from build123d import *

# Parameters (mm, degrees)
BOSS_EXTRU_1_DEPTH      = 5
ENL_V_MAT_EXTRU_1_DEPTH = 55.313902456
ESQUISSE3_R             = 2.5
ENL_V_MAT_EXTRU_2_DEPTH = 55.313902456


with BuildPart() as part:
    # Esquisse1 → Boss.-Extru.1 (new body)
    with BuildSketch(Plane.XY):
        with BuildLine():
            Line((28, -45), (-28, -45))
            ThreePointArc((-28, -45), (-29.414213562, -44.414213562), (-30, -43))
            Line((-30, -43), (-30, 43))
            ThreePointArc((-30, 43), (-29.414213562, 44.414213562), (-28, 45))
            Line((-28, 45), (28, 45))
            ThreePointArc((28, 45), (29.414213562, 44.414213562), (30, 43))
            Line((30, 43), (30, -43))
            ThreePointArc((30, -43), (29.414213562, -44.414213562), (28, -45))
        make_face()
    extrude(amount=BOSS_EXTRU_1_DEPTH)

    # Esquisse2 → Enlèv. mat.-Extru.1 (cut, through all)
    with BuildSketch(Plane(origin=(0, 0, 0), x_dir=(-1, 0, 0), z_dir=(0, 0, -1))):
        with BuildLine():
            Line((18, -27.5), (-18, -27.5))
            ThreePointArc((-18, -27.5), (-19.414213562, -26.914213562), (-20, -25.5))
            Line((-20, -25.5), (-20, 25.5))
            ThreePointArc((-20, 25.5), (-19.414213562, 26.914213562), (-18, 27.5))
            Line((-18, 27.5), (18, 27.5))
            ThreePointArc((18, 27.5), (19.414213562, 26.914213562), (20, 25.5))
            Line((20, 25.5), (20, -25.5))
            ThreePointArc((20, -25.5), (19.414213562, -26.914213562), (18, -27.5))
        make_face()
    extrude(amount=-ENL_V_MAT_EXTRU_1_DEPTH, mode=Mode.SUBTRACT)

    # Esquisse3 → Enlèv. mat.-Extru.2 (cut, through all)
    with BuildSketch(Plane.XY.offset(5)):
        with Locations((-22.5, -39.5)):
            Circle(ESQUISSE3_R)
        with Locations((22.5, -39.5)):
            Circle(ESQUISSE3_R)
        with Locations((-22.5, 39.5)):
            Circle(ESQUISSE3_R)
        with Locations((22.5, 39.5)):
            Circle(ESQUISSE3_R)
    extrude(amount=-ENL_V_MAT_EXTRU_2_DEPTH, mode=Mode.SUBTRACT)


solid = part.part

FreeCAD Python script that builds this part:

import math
import FreeCAD as App
import Part
import Sketcher
Q = App.Units.Quantity

doc = App.newDocument("Part")
body = doc.addObject("PartDesign::Body", "Body")

# Sketch on XY plane
sketch1 = doc.addObject("Sketcher::SketchObject", "Sketch")
body.addObject(sketch1)
sketch1.AttachmentSupport = (doc.XY_Plane, [""])
sketch1.MapMode = "FlatFace"
sketch1.addGeometry(Part.LineSegment(App.Vector(-28, -45, 0), App.Vector(28, -45, 0)), False)
sketch1.addGeometry(Part.ArcOfCircle(Part.Circle(App.Vector(28, -43, 0), App.Vector(0, 0, 1), 2), math.radians(-90), math.radians(0)), False)
sketch1.addGeometry(Part.LineSegment(App.Vector(30, -43, 0), App.Vector(30, 43, 0)), False)
sketch1.addGeometry(Part.ArcOfCircle(Part.Circle(App.Vector(28, 43, 0), App.Vector(0, 0, 1), 2), math.radians(0), math.radians(90)), False)
sketch1.addGeometry(Part.LineSegment(App.Vector(28, 45, 0), App.Vector(-28, 45, 0)), False)
sketch1.addGeometry(Part.ArcOfCircle(Part.Circle(App.Vector(-28, 43, 0), App.Vector(0, 0, 1), 2), math.radians(90), math.radians(180)), False)
sketch1.addGeometry(Part.LineSegment(App.Vector(-30, 43, 0), App.Vector(-30, -43, 0)), False)
sketch1.addGeometry(Part.ArcOfCircle(Part.Circle(App.Vector(-28, -43, 0), App.Vector(0, 0, 1), 2), math.radians(-180), math.radians(-90)), False)
sketch1.addConstraint(Sketcher.Constraint("Tangent", 0, 2, 1, 1))
sketch1.addConstraint(Sketcher.Constraint("Tangent", 1, 2, 2, 1))
sketch1.addConstraint(Sketcher.Constraint("Tangent", 2, 2, 3, 1))
sketch1.addConstraint(Sketcher.Constraint("Tangent", 3, 2, 4, 1))
sketch1.addConstraint(Sketcher.Constraint("Tangent", 4, 2, 5, 1))
sketch1.addConstraint(Sketcher.Constraint("Tangent", 5, 2, 6, 1))
sketch1.addConstraint(Sketcher.Constraint("Tangent", 6, 2, 7, 1))
sketch1.addConstraint(Sketcher.Constraint("Tangent", 7, 2, 0, 1))
sketch1.addConstraint(Sketcher.Constraint("Horizontal", 0))
sketch1.addConstraint(Sketcher.Constraint("Vertical", 2))
sketch1.addConstraint(Sketcher.Constraint("Horizontal", 4))
sketch1.addConstraint(Sketcher.Constraint("Vertical", 6))
sketch1.addConstraint(Sketcher.Constraint("Equal", 1, 3))
sketch1.addConstraint(Sketcher.Constraint("Equal", 3, 5))
sketch1.addConstraint(Sketcher.Constraint("Equal", 5, 7))
sketch1.addConstraint(Sketcher.Constraint("Symmetric", 1, 3, 5, 3, -1, 1))
sketch1.addConstraint(Sketcher.Constraint("Radius", 1, Q("2 mm")))
sketch1.addConstraint(Sketcher.Constraint("DistanceX", 0, 1, 0, 2, Q("56 mm")))
sketch1.addConstraint(Sketcher.Constraint("DistanceY", 2, 1, 2, 2, Q("86 mm")))
pad1 = doc.addObject("PartDesign::Pad", "Pad")
body.addObject(pad1)
pad1.Profile = sketch1
pad1.Length = 5

# Sketch on XY plane
sketch2 = doc.addObject("Sketcher::SketchObject", "Sketch001")
body.addObject(sketch2)
sketch2.AttachmentSupport = (doc.XY_Plane, [""])
sketch2.MapMode = "FlatFace"
sketch2.addGeometry(Part.LineSegment(App.Vector(18, -27.5, 0), App.Vector(-18, -27.5, 0)), False)
sketch2.addGeometry(Part.ArcOfCircle(Part.Circle(App.Vector(-18, -25.5, 0), App.Vector(0, 0, 1), 2), math.radians(-180), math.radians(-90)), False)
sketch2.addGeometry(Part.LineSegment(App.Vector(-20, -25.5, 0), App.Vector(-20, 25.5, 0)), False)
sketch2.addGeometry(Part.ArcOfCircle(Part.Circle(App.Vector(-18, 25.5, 0), App.Vector(0, 0, 1), 2), math.radians(90), math.radians(180)), False)
sketch2.addGeometry(Part.LineSegment(App.Vector(-18, 27.5, 0), App.Vector(18, 27.5, 0)), False)
sketch2.addGeometry(Part.ArcOfCircle(Part.Circle(App.Vector(18, 25.5, 0), App.Vector(0, 0, 1), 2), math.radians(0), math.radians(90)), False)
sketch2.addGeometry(Part.LineSegment(App.Vector(20, 25.5, 0), App.Vector(20, -25.5, 0)), False)
sketch2.addGeometry(Part.ArcOfCircle(Part.Circle(App.Vector(18, -25.5, 0), App.Vector(0, 0, 1), 2), math.radians(-90), math.radians(0)), False)
sketch2.addConstraint(Sketcher.Constraint("Tangent", 0, 2, 1, 2))
sketch2.addConstraint(Sketcher.Constraint("Tangent", 1, 1, 2, 1))
sketch2.addConstraint(Sketcher.Constraint("Tangent", 2, 2, 3, 2))
sketch2.addConstraint(Sketcher.Constraint("Tangent", 3, 1, 4, 1))
sketch2.addConstraint(Sketcher.Constraint("Tangent", 4, 2, 5, 2))
sketch2.addConstraint(Sketcher.Constraint("Tangent", 5, 1, 6, 1))
sketch2.addConstraint(Sketcher.Constraint("Tangent", 6, 2, 7, 2))
sketch2.addConstraint(Sketcher.Constraint("Tangent", 7, 1, 0, 1))
sketch2.addConstraint(Sketcher.Constraint("Horizontal", 0))
sketch2.addConstraint(Sketcher.Constraint("Vertical", 2))
sketch2.addConstraint(Sketcher.Constraint("Horizontal", 4))
sketch2.addConstraint(Sketcher.Constraint("Vertical", 6))
sketch2.addConstraint(Sketcher.Constraint("Equal", 1, 3))
sketch2.addConstraint(Sketcher.Constraint("Equal", 3, 5))
sketch2.addConstraint(Sketcher.Constraint("Equal", 5, 7))
sketch2.addConstraint(Sketcher.Constraint("Symmetric", 1, 3, 5, 3, -1, 1))
sketch2.addConstraint(Sketcher.Constraint("Radius", 1, Q("2 mm")))
sketch2.addConstraint(Sketcher.Constraint("DistanceX", 0, 2, 0, 1, Q("36 mm")))
sketch2.addConstraint(Sketcher.Constraint("DistanceY", 2, 1, 2, 2, Q("51 mm")))
pocket1 = doc.addObject("PartDesign::Pocket", "Pocket")
body.addObject(pocket1)
pocket1.Profile = sketch2
pocket1.Type = "ThroughAll"
pocket1.Reversed = True

# Sketch on XY plane
sketch3 = doc.addObject("Sketcher::SketchObject", "Sketch002")
body.addObject(sketch3)
sketch3.AttachmentSupport = (doc.XY_Plane, [""])
sketch3.MapMode = "FlatFace"
sketch3.AttachmentOffset = App.Placement(App.Vector(0, 0, 5), App.Rotation())
sketch3.addGeometry(Part.Circle(App.Vector(-22.5, -39.5, 0), App.Vector(0, 0, 1), 2.5), False)
sketch3.addGeometry(Part.Circle(App.Vector(22.5, -39.5, 0), App.Vector(0, 0, 1), 2.5), False)
sketch3.addGeometry(Part.Circle(App.Vector(-22.5, 39.5, 0), App.Vector(0, 0, 1), 2.5), False)
sketch3.addGeometry(Part.Circle(App.Vector(22.5, 39.5, 0), App.Vector(0, 0, 1), 2.5), False)
sketch3.addConstraint(Sketcher.Constraint("Equal", 0, 1))
sketch3.addConstraint(Sketcher.Constraint("Equal", 1, 2))
sketch3.addConstraint(Sketcher.Constraint("Equal", 2, 3))
sketch3.addConstraint(Sketcher.Constraint("Symmetric", 1, 3, 2, 3, -1, 1))
sketch3.addConstraint(Sketcher.Constraint("Symmetric", 0, 3, 3, 3, -1, 1))
sketch3.addConstraint(Sketcher.Constraint("Symmetric", 0, 3, 1, 3, -2))
sketch3.addConstraint(Sketcher.Constraint("Diameter", 0, Q("5 mm")))
sketch3.addConstraint(Sketcher.Constraint("DistanceX", 0, 3, 1, 3, Q("45 mm")))
sketch3.addConstraint(Sketcher.Constraint("DistanceY", 0, 3, 2, 3, Q("79 mm")))
pocket2 = doc.addObject("PartDesign::Pocket", "Pocket001")
body.addObject(pocket2)
pocket2.Profile = sketch3
pocket2.Type = "ThroughAll"

doc.recompute()
